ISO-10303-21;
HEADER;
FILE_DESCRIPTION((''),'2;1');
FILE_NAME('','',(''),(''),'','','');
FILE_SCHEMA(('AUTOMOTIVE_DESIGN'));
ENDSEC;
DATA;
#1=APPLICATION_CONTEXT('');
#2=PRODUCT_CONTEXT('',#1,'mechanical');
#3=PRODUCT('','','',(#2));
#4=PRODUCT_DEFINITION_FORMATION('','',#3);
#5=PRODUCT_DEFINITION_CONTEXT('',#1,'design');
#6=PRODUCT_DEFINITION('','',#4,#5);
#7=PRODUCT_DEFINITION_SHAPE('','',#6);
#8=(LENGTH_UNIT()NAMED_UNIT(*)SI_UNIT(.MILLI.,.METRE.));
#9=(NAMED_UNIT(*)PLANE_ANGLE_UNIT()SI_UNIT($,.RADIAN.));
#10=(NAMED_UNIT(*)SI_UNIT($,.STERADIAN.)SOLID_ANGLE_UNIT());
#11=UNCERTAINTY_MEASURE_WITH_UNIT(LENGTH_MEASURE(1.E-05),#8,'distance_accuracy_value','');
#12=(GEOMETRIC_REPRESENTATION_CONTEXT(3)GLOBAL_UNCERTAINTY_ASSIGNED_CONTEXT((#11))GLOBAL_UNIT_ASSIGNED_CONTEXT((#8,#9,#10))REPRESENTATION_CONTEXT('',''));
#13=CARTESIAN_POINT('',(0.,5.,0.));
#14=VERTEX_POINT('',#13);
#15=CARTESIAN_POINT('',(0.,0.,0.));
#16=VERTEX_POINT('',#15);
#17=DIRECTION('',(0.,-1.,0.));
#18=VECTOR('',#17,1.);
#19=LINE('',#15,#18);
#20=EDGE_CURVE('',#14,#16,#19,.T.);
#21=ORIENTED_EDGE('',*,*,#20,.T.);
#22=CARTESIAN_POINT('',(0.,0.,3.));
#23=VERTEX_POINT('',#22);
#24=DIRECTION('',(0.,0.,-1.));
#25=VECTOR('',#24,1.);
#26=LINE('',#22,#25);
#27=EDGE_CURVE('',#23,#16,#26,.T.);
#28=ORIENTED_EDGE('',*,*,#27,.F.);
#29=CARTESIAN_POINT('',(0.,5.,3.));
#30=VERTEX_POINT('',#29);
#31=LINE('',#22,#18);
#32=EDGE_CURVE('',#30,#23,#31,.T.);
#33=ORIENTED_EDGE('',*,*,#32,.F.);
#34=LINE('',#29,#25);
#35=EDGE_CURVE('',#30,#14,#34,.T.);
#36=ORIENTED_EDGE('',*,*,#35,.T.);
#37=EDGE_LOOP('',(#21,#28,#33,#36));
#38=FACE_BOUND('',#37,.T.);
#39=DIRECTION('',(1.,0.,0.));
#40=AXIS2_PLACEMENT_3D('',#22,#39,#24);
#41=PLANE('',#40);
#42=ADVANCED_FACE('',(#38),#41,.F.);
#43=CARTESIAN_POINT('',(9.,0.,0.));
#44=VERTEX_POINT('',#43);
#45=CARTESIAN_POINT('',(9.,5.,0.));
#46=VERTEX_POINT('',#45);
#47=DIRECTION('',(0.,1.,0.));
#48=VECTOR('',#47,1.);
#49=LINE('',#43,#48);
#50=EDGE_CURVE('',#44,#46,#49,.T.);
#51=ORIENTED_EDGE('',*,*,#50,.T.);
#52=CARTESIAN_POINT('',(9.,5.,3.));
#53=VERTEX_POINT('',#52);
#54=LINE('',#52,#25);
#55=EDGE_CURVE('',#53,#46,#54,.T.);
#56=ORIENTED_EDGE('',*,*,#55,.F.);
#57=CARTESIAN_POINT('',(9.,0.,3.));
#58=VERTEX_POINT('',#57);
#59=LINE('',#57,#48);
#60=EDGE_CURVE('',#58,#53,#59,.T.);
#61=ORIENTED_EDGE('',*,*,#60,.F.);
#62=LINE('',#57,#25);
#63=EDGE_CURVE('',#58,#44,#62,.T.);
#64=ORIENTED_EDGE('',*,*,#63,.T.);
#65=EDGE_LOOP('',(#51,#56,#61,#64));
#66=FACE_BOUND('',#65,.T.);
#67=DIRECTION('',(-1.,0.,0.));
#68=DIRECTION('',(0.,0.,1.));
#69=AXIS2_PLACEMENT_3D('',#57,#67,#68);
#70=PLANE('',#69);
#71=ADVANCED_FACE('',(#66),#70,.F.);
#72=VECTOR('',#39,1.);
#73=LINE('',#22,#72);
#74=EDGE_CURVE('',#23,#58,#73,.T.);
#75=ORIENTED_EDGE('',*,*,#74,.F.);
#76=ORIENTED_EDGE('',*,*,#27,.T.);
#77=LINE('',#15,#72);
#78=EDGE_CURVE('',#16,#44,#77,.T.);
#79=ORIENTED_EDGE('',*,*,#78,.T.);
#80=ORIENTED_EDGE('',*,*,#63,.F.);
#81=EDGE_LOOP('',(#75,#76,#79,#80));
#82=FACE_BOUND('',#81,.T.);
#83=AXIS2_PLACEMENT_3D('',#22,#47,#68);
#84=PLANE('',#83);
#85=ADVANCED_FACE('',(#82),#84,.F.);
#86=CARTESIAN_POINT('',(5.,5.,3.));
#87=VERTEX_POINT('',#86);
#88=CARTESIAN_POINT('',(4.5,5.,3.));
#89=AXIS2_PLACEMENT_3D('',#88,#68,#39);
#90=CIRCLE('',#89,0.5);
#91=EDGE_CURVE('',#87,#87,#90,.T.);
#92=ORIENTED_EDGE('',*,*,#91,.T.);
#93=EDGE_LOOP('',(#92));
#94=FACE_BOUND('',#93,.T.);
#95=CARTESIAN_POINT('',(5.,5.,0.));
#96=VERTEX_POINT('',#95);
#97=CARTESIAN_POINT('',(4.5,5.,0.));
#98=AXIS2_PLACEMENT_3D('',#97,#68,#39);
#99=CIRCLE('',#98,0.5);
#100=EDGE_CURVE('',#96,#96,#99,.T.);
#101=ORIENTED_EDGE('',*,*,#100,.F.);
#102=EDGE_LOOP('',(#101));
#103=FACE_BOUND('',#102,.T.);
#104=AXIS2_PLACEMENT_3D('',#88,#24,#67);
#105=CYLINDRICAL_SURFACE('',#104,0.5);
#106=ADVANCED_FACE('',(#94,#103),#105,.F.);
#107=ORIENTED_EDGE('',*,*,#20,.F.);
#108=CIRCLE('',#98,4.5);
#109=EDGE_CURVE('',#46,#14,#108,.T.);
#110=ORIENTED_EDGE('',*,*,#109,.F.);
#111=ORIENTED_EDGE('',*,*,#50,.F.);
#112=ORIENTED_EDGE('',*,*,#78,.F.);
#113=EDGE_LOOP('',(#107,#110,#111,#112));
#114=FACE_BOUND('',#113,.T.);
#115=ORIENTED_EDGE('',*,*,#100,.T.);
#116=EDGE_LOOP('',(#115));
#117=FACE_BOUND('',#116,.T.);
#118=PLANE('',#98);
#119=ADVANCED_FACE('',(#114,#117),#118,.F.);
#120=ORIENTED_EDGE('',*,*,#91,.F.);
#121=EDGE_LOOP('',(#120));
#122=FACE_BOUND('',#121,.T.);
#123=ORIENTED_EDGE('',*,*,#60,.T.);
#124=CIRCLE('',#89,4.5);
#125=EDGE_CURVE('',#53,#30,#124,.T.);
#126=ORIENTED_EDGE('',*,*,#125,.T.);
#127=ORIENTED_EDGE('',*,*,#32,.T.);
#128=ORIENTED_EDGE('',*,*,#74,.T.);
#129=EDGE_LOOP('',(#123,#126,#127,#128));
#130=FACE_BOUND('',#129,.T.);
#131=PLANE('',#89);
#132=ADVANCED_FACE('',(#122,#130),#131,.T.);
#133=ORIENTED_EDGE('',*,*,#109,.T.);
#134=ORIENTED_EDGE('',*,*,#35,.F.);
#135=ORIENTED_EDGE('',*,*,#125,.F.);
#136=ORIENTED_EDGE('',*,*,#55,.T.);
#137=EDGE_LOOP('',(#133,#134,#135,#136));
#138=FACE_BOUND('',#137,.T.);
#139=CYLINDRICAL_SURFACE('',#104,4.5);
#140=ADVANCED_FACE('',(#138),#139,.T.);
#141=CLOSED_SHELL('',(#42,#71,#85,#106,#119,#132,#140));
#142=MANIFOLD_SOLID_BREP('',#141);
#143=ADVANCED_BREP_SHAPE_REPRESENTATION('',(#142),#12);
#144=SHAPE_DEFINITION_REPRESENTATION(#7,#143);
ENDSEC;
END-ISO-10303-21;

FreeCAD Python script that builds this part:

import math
import FreeCAD as App
import Part
import Sketcher
Q = App.Units.Quantity

doc = App.newDocument("Part")
params = doc.addObject("Spreadsheet::Sheet", "Params")
for row, (alias, value) in enumerate([
    ("sketch1_diameter", "1 mm"),
    ("sketch1_radius", "4.5 mm"),
    ("sketch1_height", "5 mm"),
    ("pad1_length", "3 mm"),
], start=1):
    params.set(f"A{row}", alias)
    params.set(f"B{row}", "=" + value)
    params.setAlias(f"B{row}", alias)

body = doc.addObject("PartDesign::Body", "Body")

# Sketch on XY plane
sketch1 = doc.addObject("Sketcher::SketchObject", "Sketch")
body.addObject(sketch1)
sketch1.AttachmentSupport = (doc.XY_Plane, [""])
sketch1.MapMode = "FlatFace"
sketch1.addGeometry([
    Part.LineSegment(App.Vector(0, 0, 0), App.Vector(9, 0, 0)),  # 0
    Part.LineSegment(App.Vector(9, 0, 0), App.Vector(9, 5, 0)),  # 1
    Part.ArcOfCircle(Part.Circle(App.Vector(4.5, 5, 0), App.Vector(0, 0, 1), 4.5), math.radians(0), math.radians(180)),  # 2
    Part.LineSegment(App.Vector(0, 5, 0), App.Vector(0, 0, 0)),  # 3
    Part.Circle(App.Vector(4.5, 5, 0), App.Vector(0, 0, 1), 0.5),  # 4
], False)
sketch1.addConstraint([
    Sketcher.Constraint("Coincident", 0, 2, 1, 1),
    Sketcher.Constraint("Tangent", 1, 2, 2, 1),
    Sketcher.Constraint("Tangent", 2, 2, 3, 1),
    Sketcher.Constraint("Coincident", 3, 2, 0, 1),
    Sketcher.Constraint("Horizontal", 0),
    Sketcher.Constraint("Vertical", 1),
    Sketcher.Constraint("Vertical", 3),
    Sketcher.Constraint("Coincident", 3, 2, -1, 1),
    Sketcher.Constraint("Coincident", 4, 3, 2, 3),
    Sketcher.Constraint("Diameter", 4, Q("1 mm")),
    Sketcher.Constraint("Radius", 2, Q("4.5 mm")),
    Sketcher.Constraint("DistanceY", 1, 1, 1, 2, Q("5 mm")),
])
sketch1.setExpression("Constraints[9]", "Params.sketch1_diameter")
sketch1.setExpression("Constraints[10]", "Params.sketch1_radius")
sketch1.setExpression("Constraints[11]", "Params.sketch1_height")
pad1 = doc.addObject("PartDesign::Pad", "Pad")
body.addObject(pad1)
pad1.Profile = sketch1
pad1.setExpression("Length", "Params.pad1_length")

doc.recompute()
